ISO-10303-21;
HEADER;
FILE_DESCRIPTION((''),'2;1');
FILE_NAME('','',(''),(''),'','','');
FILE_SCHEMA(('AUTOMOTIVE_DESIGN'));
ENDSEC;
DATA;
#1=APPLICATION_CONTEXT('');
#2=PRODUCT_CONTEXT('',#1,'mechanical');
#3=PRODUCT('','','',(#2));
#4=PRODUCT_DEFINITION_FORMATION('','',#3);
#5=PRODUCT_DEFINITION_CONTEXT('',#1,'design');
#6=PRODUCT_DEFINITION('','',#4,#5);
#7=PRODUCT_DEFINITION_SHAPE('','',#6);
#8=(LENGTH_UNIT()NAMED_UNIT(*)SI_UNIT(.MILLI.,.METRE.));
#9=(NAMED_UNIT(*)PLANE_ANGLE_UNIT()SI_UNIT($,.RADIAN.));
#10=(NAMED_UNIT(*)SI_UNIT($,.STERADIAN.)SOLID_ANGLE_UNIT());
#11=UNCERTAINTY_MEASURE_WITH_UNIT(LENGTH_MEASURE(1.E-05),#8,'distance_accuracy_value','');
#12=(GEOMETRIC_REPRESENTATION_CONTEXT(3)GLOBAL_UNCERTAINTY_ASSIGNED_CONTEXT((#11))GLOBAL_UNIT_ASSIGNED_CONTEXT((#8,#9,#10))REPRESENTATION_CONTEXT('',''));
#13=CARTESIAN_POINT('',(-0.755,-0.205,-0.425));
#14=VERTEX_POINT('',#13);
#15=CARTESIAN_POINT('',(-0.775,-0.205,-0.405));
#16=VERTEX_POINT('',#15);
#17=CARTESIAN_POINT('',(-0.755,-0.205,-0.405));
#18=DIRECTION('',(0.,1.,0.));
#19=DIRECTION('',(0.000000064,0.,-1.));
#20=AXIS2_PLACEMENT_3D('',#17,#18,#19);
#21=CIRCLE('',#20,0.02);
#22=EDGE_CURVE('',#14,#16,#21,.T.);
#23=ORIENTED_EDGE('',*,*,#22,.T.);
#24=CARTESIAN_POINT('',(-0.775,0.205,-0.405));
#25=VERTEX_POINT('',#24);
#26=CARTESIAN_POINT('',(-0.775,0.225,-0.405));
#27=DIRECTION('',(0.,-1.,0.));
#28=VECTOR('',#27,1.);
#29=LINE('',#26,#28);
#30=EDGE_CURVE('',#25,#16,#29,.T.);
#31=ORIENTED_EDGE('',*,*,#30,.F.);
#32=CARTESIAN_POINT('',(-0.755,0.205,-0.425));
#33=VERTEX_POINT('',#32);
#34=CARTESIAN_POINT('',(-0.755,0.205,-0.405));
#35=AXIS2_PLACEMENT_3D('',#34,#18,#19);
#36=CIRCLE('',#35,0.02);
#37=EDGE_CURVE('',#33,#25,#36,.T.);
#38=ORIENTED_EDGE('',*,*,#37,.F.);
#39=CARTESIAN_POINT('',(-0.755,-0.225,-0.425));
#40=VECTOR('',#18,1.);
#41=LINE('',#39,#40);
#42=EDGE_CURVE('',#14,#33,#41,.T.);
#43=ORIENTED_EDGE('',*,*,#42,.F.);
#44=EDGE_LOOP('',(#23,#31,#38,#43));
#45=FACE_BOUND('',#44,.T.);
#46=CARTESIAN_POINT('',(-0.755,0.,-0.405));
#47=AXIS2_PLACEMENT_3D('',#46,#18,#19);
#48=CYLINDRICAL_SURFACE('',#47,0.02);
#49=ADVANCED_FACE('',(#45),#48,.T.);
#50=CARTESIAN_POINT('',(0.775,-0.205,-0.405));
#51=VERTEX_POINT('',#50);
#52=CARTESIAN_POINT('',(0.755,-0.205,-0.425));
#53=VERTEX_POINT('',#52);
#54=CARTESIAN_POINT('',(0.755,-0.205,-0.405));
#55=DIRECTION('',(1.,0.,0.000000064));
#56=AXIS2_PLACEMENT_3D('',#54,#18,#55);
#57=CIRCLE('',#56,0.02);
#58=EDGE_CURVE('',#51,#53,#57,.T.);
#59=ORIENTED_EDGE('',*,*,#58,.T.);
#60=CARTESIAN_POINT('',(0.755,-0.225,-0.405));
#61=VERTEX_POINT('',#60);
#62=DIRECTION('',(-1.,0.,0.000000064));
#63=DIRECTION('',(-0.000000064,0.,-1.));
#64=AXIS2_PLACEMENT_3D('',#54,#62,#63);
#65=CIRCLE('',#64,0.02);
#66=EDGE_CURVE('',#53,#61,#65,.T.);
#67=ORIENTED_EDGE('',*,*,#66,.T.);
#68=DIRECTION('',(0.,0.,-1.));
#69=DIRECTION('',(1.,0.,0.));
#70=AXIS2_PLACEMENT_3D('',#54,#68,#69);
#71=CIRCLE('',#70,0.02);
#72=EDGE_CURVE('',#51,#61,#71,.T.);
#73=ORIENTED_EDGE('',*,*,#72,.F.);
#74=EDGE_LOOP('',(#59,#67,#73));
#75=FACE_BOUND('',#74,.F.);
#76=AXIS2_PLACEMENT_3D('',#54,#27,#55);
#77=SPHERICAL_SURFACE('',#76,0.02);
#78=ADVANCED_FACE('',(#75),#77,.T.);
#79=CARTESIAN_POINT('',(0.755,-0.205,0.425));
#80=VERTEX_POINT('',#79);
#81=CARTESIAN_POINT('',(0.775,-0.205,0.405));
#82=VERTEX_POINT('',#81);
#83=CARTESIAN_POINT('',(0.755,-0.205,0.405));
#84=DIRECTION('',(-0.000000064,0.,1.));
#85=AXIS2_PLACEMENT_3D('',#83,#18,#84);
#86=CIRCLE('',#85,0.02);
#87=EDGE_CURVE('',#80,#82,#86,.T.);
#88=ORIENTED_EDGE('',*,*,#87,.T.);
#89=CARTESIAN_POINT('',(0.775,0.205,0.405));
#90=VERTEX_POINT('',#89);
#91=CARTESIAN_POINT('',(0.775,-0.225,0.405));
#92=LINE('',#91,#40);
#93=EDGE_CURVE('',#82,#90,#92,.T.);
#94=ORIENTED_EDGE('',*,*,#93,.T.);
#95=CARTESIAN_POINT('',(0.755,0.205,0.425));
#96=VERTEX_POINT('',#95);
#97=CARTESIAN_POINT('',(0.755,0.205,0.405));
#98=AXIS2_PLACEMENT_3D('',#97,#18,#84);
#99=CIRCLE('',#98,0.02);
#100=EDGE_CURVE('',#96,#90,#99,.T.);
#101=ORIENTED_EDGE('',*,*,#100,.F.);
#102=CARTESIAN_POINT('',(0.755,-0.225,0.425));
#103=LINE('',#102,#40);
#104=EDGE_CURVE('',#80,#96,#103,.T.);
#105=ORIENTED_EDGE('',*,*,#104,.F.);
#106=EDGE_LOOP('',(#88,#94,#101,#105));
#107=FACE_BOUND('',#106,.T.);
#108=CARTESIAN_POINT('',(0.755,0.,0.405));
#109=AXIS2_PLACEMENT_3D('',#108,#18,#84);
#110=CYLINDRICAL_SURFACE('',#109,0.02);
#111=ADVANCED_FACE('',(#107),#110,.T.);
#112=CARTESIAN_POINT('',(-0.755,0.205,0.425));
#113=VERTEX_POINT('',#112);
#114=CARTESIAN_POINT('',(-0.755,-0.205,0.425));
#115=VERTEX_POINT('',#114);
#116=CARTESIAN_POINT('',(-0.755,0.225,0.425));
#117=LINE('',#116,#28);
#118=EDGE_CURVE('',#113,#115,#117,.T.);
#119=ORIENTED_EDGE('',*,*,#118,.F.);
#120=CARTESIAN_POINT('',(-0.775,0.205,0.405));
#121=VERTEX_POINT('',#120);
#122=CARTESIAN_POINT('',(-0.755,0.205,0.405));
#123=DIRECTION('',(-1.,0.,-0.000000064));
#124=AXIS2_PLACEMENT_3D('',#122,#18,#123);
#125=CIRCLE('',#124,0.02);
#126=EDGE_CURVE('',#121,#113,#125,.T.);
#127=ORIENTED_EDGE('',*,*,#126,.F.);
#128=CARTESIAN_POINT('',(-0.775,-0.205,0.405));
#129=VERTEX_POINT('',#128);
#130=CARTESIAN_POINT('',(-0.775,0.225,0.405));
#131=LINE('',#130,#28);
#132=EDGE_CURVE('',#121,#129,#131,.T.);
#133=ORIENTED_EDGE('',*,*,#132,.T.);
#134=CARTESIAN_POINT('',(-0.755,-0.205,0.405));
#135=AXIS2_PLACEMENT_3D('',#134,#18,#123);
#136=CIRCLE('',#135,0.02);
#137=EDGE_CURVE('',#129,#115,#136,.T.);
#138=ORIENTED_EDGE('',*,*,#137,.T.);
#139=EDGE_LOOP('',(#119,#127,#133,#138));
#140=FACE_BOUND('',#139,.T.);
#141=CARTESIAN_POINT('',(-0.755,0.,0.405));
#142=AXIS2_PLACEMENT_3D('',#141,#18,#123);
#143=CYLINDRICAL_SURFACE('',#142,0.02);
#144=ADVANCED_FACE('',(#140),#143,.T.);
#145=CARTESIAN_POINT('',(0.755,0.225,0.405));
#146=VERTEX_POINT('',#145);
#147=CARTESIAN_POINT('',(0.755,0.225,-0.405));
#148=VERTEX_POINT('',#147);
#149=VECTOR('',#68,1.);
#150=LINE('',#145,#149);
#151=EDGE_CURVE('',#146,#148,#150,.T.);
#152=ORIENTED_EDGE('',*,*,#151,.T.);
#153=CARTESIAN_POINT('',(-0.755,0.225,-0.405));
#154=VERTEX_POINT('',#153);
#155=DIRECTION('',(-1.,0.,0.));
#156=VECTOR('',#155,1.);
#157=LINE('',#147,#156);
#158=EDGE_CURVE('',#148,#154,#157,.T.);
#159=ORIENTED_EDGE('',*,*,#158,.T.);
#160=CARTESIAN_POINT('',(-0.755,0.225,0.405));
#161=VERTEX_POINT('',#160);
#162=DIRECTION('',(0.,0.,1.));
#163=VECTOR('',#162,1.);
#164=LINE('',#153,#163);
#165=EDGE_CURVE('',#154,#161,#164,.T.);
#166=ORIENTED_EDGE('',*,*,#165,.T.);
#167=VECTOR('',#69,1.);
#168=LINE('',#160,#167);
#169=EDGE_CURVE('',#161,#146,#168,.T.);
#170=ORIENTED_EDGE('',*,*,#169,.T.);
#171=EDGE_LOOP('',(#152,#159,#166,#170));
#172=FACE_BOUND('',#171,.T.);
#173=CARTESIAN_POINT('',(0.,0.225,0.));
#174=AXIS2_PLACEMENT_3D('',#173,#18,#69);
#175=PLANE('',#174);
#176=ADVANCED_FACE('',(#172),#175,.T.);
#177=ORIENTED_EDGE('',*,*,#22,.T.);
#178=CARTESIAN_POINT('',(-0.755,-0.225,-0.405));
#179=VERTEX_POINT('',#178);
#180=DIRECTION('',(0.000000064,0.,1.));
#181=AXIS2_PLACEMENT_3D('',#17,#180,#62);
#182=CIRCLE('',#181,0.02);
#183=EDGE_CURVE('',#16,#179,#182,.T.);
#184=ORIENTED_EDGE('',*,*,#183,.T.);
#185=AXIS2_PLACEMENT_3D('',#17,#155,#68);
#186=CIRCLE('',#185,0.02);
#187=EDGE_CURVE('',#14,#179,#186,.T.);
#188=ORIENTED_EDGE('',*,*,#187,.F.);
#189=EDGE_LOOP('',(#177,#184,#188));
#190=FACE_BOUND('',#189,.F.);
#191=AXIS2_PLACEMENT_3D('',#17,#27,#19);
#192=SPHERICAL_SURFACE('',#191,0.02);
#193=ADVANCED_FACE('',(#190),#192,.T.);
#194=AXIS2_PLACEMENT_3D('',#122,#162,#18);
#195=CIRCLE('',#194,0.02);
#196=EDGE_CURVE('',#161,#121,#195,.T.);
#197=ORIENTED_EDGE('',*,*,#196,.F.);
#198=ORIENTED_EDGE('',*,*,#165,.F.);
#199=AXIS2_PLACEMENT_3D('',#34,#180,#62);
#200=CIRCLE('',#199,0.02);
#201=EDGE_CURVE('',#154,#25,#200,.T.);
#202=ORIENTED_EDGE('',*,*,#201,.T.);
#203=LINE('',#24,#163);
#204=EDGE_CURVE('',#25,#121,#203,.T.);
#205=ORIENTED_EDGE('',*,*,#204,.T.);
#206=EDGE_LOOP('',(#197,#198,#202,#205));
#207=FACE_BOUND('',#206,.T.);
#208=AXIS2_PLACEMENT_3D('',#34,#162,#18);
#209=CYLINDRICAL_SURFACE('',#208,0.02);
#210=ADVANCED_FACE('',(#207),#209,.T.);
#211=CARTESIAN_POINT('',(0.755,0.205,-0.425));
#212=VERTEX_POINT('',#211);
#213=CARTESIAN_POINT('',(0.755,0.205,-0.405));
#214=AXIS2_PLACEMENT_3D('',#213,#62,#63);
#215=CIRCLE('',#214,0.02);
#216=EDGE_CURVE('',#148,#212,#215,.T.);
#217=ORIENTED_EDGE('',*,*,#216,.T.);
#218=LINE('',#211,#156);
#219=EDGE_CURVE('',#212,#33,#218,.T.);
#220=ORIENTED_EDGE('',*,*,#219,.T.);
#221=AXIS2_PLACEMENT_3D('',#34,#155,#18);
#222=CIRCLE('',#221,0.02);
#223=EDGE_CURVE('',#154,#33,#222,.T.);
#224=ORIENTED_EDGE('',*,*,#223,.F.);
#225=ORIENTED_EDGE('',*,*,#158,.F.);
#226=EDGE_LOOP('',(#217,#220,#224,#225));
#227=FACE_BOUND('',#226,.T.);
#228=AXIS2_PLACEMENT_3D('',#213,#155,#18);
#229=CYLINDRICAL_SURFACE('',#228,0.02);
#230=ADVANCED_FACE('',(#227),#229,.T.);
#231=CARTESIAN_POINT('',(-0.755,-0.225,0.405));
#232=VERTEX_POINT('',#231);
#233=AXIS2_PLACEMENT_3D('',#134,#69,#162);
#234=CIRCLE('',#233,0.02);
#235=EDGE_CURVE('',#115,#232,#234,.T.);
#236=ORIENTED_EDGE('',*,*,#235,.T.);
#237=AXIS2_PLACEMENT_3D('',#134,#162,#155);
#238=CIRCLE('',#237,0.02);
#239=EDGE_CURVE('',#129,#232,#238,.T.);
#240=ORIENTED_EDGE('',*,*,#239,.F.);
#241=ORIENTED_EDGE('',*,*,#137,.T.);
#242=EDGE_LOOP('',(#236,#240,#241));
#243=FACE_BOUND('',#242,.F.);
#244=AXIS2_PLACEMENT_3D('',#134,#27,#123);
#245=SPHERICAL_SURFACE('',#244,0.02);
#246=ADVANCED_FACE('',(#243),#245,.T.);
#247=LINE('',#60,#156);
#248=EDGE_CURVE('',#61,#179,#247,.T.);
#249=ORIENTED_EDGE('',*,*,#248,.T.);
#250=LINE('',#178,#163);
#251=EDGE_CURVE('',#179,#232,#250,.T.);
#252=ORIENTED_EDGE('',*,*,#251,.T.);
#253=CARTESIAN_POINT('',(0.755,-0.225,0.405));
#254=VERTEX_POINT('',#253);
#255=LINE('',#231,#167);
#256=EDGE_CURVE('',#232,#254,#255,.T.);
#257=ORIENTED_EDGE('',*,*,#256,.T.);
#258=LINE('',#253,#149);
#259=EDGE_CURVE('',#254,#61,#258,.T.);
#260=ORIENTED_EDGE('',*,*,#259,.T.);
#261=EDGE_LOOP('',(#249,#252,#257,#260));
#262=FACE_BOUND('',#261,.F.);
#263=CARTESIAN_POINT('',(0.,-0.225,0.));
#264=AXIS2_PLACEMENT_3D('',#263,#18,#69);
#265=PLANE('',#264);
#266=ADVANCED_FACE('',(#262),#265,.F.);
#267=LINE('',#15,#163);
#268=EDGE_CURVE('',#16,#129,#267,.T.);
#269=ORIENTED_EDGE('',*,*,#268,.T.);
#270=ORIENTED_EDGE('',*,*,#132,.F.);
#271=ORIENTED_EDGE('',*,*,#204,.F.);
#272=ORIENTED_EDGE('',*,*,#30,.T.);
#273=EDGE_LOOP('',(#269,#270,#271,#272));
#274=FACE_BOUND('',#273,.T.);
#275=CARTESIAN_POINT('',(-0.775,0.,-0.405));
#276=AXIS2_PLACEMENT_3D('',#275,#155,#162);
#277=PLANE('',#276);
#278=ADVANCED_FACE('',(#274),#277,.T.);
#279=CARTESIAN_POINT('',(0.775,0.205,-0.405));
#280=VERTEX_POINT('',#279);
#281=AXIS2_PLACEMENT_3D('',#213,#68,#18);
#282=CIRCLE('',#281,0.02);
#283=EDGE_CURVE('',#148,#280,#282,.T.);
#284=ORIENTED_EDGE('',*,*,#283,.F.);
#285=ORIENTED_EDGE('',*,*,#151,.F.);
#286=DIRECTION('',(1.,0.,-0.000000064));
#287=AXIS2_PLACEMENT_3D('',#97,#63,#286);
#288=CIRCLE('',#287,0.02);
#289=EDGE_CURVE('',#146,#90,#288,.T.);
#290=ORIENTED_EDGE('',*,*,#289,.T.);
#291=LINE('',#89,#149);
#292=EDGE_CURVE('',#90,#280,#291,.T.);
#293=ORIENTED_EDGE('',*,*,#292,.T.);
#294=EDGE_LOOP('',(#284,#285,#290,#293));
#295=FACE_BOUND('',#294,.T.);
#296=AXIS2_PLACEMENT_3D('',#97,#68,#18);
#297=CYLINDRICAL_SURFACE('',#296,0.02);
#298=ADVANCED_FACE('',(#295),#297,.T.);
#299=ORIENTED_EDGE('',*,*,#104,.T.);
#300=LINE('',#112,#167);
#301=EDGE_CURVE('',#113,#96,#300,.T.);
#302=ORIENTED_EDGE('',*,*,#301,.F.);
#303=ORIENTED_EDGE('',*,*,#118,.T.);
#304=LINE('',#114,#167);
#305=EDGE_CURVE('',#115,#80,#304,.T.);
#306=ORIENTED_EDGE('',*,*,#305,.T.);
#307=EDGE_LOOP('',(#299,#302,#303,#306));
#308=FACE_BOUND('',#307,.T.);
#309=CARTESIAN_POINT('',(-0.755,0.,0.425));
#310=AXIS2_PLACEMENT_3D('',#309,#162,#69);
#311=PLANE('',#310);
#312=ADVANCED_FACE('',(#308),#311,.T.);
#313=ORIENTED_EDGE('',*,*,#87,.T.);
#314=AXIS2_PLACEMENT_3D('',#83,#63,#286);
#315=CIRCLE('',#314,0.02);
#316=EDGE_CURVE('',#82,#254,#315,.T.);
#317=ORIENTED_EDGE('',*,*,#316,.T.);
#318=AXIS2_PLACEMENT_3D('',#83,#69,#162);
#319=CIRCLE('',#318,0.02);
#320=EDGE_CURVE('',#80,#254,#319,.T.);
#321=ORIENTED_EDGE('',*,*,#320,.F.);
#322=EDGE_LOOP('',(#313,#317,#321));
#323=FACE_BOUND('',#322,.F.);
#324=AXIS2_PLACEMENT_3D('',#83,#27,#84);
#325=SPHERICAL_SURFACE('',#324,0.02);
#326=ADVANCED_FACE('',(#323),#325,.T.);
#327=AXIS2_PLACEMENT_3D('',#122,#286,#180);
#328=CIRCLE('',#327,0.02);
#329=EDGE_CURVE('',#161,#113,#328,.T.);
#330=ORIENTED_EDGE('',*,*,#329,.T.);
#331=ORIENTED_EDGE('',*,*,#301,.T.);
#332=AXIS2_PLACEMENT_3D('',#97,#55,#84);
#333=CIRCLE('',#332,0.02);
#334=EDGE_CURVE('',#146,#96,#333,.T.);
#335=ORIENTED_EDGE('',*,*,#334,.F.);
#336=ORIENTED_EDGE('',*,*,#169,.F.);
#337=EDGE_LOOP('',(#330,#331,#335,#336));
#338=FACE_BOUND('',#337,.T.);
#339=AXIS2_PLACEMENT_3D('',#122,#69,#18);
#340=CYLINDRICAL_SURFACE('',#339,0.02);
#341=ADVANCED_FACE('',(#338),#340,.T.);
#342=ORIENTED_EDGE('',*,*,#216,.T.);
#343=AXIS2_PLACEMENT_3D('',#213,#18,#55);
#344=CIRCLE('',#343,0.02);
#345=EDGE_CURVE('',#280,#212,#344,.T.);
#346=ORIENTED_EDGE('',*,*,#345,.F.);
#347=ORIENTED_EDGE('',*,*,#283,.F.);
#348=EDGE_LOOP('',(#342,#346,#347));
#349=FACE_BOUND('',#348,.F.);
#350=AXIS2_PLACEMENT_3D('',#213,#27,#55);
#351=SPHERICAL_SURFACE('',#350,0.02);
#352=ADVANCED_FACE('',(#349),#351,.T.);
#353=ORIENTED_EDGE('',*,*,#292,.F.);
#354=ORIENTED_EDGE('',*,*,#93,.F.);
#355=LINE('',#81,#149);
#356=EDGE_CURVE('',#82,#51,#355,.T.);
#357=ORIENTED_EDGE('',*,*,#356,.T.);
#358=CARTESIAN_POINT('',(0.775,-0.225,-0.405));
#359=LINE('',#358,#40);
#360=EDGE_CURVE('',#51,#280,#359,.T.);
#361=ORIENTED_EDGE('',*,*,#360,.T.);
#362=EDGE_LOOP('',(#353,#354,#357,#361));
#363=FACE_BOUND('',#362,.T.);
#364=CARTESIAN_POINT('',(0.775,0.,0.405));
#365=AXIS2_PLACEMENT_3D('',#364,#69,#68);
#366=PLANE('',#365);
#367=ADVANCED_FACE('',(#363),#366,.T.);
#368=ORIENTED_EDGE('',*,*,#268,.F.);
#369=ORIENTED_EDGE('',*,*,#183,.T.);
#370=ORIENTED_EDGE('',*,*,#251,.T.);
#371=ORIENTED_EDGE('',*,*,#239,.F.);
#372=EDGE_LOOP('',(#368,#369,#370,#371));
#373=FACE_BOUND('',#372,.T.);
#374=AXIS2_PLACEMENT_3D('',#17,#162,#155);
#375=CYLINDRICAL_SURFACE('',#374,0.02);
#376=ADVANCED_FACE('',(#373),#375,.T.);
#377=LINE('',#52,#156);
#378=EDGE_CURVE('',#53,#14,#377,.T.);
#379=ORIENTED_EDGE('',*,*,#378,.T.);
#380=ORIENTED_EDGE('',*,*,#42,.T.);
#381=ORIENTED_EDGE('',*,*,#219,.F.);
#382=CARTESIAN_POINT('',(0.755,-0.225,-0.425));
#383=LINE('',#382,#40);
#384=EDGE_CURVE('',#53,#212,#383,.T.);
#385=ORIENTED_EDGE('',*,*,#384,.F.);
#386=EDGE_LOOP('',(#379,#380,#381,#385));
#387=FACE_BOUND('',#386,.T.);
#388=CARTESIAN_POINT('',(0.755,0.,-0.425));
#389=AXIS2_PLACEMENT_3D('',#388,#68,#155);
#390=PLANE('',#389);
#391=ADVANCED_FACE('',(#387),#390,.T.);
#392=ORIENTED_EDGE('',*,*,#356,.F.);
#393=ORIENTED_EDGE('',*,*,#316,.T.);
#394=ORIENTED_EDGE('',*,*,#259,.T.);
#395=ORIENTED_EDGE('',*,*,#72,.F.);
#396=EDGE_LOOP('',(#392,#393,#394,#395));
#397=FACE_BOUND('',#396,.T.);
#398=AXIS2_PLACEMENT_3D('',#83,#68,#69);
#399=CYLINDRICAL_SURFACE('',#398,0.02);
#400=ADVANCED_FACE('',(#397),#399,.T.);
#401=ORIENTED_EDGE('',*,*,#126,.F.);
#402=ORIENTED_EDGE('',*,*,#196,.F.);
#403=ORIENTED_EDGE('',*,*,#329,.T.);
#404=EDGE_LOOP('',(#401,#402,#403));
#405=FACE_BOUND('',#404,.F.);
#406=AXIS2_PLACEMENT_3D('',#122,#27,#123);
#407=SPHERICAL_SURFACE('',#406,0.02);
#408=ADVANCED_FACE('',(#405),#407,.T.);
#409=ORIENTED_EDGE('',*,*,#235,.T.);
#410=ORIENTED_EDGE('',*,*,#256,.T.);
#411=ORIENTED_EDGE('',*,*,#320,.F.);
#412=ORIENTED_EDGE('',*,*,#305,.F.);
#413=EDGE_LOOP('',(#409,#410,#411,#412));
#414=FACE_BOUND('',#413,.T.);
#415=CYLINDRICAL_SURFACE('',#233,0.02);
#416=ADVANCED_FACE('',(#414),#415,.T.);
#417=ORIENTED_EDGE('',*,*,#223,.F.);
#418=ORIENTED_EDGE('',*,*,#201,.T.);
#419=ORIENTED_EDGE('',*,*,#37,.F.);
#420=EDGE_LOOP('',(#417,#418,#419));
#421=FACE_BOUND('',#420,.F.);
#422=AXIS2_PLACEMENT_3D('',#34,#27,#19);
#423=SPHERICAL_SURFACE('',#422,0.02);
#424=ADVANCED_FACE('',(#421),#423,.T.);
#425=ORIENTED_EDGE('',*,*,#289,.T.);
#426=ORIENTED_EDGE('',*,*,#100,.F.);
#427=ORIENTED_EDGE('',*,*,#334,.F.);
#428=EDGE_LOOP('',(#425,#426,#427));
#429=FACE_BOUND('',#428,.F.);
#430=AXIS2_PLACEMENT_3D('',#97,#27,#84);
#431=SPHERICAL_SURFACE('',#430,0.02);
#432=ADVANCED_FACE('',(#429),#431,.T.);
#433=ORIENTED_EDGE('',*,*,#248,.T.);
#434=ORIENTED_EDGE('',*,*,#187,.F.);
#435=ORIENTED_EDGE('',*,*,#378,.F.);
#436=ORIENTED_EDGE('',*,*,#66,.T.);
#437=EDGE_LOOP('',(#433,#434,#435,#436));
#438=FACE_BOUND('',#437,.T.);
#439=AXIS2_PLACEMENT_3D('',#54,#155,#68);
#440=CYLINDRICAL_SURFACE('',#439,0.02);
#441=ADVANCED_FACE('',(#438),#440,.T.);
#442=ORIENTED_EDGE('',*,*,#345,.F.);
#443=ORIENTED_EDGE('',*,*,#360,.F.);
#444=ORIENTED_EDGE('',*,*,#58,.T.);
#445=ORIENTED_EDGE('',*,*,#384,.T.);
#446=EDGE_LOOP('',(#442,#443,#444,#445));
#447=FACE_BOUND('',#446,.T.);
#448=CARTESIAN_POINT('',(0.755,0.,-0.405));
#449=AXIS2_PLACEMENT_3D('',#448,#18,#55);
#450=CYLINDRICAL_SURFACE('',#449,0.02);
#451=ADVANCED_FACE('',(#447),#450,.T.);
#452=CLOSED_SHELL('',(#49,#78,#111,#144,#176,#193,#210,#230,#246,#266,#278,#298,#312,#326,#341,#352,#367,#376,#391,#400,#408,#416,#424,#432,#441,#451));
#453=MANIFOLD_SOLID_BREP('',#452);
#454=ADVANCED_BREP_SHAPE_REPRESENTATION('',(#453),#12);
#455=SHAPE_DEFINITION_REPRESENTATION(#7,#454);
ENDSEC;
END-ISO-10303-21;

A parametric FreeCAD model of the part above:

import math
import FreeCAD as App
import Part
import Sketcher

V = App.Vector
Q = App.Units.Quantity

doc = App.newDocument("Part")
body = doc.addObject("PartDesign::Body", "Body")

# Sketch on XZ plane
sketch1 = body.newObject("Sketcher::SketchObject", "Sketch")
sketch1.AttachmentSupport = (doc.getObject("XZ_Plane"), [""])
sketch1.MapMode = "FlatFace"
sketch1.addGeometry(Part.LineSegment(V(-0.755, 0.425, 0), V(0.755, 0.425, 0)), False)
sketch1.addGeometry(Part.ArcOfCircle(Part.Circle(V(0.755, 0.405, 0), V(0, 0, 1), 0.02), math.radians(-0.000003), math.radians(90.000003)), False)
sketch1.addGeometry(Part.LineSegment(V(0.775, 0.405, 0), V(0.775, -0.405, 0)), False)
sketch1.addGeometry(Part.ArcOfCircle(Part.Circle(V(0.755, -0.405, 0), V(0, 0, 1), 0.02), math.radians(-90.000003), math.radians(0.000003)), False)
sketch1.addGeometry(Part.LineSegment(V(0.755, -0.425, 0), V(-0.755, -0.425, 0)), False)
sketch1.addGeometry(Part.ArcOfCircle(Part.Circle(V(-0.755, -0.405, 0), V(0, 0, 1), 0.02), math.radians(179.999997), math.radians(270.000003)), False)
sketch1.addGeometry(Part.LineSegment(V(-0.775, -0.405, 0), V(-0.775, 0.405, 0)), False)
sketch1.addGeometry(Part.ArcOfCircle(Part.Circle(V(-0.755, 0.405, 0), V(0, 0, 1), 0.02), math.radians(89.999997), math.radians(180.000003)), False)
sketch1.addConstraint(Sketcher.Constraint("Tangent", 0, 2, 1, 2))
sketch1.addConstraint(Sketcher.Constraint("Tangent", 1, 1, 2, 1))
sketch1.addConstraint(Sketcher.Constraint("Tangent", 2, 2, 3, 2))
sketch1.addConstraint(Sketcher.Constraint("Tangent", 3, 1, 4, 1))
sketch1.addConstraint(Sketcher.Constraint("Tangent", 4, 2, 5, 2))
sketch1.addConstraint(Sketcher.Constraint("Tangent", 5, 1, 6, 1))
sketch1.addConstraint(Sketcher.Constraint("Tangent", 6, 2, 7, 2))
sketch1.addConstraint(Sketcher.Constraint("Tangent", 7, 1, 0, 1))
sketch1.addConstraint(Sketcher.Constraint("Horizontal", 0))
sketch1.addConstraint(Sketcher.Constraint("Vertical", 2))
sketch1.addConstraint(Sketcher.Constraint("Horizontal", 4))
sketch1.addConstraint(Sketcher.Constraint("Vertical", 6))
sketch1.addConstraint(Sketcher.Constraint("Equal", 1, 3))
sketch1.addConstraint(Sketcher.Constraint("Equal", 3, 5))
sketch1.addConstraint(Sketcher.Constraint("Equal", 5, 7))
sketch1.addConstraint(Sketcher.Constraint("Symmetric", 1, 3, 5, 3, -1, 1))
sketch1.addConstraint(Sketcher.Constraint("Radius", 1, Q("0.02 mm")))
sketch1.addConstraint(Sketcher.Constraint("DistanceX", 0, 1, 0, 2, Q("1.51 mm")))
sketch1.addConstraint(Sketcher.Constraint("DistanceY", 2, 2, 2, 1, Q("0.81 mm")))
pad1 = body.newObject("PartDesign::Pad", "Pad")
pad1.Profile = sketch1
pad1.Length = 0.45
pad1.Midplane = True
doc.recompute()

fillet = body.newObject("PartDesign::Fillet", "Fillet")
fillet.Base = (pad1, ["Edge1"])
fillet.UseAllEdges = True
fillet.Radius = 0.02

doc.recompute()
